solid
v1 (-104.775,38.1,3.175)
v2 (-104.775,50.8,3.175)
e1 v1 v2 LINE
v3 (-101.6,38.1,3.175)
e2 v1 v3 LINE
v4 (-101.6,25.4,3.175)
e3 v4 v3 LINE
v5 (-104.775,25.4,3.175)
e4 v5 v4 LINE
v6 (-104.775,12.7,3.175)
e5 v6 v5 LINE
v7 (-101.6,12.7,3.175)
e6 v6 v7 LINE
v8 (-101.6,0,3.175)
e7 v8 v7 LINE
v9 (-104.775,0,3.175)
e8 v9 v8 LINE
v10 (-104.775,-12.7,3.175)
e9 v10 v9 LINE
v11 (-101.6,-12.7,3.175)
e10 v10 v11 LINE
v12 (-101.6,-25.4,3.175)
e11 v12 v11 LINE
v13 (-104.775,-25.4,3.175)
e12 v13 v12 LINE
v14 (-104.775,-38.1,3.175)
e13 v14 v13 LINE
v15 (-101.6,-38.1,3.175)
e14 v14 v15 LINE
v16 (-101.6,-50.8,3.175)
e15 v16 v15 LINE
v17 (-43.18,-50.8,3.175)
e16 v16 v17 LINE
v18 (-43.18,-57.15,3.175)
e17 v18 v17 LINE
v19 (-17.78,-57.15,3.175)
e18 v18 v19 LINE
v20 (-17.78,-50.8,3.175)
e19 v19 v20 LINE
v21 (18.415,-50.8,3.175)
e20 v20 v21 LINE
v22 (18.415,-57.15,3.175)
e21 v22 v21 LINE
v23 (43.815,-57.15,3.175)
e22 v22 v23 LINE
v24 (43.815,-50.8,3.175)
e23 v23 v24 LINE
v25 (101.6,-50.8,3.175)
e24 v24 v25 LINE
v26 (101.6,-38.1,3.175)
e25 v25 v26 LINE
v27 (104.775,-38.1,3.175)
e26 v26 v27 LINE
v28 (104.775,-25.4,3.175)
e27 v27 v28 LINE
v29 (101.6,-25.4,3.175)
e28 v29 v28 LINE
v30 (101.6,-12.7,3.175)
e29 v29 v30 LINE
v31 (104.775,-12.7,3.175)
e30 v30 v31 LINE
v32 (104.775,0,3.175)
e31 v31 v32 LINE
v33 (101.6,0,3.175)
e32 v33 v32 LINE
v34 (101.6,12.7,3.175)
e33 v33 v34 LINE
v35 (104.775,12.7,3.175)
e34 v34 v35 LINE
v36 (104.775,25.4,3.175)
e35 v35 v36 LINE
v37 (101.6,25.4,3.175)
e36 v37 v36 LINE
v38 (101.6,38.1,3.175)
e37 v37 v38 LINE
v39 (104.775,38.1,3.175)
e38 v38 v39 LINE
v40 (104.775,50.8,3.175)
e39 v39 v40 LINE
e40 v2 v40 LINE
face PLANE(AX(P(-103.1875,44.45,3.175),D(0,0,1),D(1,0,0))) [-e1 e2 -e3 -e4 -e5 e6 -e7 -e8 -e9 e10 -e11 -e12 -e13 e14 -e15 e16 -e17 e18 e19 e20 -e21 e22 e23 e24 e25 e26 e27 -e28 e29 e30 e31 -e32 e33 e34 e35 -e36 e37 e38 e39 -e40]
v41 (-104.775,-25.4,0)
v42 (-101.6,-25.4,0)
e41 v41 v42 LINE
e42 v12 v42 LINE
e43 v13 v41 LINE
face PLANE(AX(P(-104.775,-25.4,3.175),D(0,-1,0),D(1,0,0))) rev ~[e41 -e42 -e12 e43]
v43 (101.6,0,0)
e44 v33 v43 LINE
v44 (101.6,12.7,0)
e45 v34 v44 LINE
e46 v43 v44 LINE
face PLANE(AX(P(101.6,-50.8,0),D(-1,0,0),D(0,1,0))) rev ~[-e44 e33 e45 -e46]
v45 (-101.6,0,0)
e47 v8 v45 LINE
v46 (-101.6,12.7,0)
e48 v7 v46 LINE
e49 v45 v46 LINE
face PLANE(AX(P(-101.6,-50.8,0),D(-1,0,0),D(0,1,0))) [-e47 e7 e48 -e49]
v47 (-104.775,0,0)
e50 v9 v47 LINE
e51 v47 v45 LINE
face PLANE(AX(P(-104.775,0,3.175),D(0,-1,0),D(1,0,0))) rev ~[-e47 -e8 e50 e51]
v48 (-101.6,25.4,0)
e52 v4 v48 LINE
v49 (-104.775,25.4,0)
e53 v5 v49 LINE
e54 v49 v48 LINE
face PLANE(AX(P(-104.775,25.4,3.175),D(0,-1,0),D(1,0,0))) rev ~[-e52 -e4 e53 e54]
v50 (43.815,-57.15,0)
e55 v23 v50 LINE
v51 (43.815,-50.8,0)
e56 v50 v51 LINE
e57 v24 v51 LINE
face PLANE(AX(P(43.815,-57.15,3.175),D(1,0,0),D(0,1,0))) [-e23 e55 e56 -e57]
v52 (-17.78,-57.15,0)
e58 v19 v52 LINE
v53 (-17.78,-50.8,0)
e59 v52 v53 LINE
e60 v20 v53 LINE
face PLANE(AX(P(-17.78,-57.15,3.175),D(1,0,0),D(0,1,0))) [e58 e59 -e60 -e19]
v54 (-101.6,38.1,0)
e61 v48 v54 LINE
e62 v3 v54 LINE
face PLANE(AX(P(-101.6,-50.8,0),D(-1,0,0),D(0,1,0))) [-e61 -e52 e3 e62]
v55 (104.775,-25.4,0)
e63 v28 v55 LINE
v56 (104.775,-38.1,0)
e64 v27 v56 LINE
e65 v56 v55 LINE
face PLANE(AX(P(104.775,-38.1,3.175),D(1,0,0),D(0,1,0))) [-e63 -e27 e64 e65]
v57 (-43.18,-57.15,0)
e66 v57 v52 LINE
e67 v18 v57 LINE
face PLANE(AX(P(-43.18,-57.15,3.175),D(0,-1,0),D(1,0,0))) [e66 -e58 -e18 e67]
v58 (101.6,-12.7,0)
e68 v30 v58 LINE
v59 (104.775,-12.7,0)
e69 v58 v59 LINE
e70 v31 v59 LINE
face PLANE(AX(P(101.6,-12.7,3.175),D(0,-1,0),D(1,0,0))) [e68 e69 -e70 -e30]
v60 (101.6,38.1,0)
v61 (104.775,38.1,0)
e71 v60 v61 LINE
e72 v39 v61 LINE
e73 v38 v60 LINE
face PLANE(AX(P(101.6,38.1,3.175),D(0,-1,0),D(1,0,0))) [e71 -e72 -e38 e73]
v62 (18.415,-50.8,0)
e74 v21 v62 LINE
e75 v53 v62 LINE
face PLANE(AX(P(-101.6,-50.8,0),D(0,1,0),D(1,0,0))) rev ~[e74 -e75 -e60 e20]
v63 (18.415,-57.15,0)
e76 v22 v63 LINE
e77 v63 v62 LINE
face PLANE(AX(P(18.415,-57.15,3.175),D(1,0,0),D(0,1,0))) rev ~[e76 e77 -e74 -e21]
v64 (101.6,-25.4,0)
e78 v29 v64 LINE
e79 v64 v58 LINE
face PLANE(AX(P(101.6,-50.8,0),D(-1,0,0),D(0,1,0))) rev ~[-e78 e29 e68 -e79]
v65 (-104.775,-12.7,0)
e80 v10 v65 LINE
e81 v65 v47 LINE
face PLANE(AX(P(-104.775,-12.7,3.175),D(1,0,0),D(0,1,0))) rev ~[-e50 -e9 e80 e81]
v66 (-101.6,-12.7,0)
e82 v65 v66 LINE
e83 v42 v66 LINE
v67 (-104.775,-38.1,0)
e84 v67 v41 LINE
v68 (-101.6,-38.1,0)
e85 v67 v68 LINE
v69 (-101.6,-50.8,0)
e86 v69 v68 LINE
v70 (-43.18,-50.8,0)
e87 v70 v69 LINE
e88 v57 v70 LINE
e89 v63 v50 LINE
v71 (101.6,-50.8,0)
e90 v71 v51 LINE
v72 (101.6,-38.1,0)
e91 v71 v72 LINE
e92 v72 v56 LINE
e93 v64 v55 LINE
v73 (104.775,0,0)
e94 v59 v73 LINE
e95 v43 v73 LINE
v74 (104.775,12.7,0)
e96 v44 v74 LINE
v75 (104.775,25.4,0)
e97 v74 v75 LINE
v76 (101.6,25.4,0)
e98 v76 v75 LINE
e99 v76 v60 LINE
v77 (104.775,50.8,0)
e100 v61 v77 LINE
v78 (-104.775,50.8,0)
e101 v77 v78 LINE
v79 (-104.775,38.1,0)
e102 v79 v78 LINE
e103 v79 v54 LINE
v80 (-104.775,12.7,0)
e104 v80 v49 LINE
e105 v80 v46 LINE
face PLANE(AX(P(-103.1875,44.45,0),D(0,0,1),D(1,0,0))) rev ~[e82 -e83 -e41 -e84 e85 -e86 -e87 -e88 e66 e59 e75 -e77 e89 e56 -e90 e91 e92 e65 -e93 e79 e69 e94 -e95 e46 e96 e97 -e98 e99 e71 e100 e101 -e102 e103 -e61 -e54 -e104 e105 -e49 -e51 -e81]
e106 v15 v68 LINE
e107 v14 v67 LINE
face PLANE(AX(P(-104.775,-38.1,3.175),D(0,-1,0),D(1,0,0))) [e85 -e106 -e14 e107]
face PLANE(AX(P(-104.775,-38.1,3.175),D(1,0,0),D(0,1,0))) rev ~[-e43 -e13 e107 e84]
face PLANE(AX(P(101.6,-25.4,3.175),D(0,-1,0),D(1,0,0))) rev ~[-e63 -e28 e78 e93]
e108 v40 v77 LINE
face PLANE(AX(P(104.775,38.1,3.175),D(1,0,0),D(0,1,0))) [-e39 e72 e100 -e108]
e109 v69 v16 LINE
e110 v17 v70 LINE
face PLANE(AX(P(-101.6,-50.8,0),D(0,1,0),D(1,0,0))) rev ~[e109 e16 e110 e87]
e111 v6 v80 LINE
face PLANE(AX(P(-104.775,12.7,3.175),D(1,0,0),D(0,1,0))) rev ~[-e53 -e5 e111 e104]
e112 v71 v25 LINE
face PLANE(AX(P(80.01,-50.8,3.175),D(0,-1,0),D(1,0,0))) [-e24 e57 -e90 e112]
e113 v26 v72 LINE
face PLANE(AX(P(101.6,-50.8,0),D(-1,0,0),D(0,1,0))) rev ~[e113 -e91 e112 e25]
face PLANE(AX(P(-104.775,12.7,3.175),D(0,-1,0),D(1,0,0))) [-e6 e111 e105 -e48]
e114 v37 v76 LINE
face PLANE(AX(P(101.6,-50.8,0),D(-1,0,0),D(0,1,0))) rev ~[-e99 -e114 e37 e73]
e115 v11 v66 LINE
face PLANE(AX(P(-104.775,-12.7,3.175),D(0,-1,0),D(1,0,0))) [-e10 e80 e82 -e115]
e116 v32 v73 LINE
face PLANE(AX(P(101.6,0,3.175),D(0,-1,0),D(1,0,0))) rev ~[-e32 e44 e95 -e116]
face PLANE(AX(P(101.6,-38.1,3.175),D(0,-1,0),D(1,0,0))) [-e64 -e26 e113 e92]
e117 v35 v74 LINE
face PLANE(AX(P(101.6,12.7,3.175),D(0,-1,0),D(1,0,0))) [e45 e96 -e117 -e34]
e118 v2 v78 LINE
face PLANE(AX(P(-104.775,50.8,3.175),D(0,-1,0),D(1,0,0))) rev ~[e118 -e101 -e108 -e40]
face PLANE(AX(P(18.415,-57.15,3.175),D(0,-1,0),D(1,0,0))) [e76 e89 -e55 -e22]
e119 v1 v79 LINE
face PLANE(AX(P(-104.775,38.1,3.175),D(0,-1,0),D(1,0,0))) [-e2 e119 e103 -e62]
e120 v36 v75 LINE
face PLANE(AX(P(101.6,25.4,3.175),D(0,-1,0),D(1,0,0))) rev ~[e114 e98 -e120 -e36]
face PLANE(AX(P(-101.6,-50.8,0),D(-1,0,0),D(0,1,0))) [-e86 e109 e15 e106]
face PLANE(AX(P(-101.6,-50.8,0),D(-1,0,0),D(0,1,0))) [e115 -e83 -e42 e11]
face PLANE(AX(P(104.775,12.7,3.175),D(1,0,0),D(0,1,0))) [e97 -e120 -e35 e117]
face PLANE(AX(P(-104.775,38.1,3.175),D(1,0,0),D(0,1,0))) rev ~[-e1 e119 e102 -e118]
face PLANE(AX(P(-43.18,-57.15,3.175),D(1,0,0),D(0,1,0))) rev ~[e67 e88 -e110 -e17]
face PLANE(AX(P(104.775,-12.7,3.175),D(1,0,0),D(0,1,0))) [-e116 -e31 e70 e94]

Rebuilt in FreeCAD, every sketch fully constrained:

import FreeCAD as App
import Part
import Sketcher
Q = App.Units.Quantity


def add_polygon(sketch, points):
    """Adds a closed chain of lines whose ends are joined by coincident constraints."""
    first, n = sketch.GeometryCount, len(points)
    for a, b in zip(points, points[1:] + points[:1]):
        sketch.addGeometry(Part.LineSegment(App.Vector(*a, 0), App.Vector(*b, 0)), False)
    for i in range(n):
        sketch.addConstraint(Sketcher.Constraint("Coincident", first + i, 2, first + (i + 1) % n, 1))

doc = App.newDocument("Part")
body = doc.addObject("PartDesign::Body", "Body")

sketch1 = body.newObject("Sketcher::SketchObject", "Sketch")
sketch1.AttachmentSupport = (doc.getObject("XY_Plane"), [""])
sketch1.MapMode = "FlatFace"
add_polygon(sketch1, [(-102, 51), (-102, -51), (102, -51), (102, 51)])
sketch1.addConstraint([
    Sketcher.Constraint("Vertical", 0),
    Sketcher.Constraint("Horizontal", 1),
    Sketcher.Constraint("Vertical", 2),
    Sketcher.Constraint("Horizontal", 3),
    Sketcher.Constraint("Symmetric", 0, 2, 2, 2, -1, 1),
    Sketcher.Constraint("DistanceX", 1, 1, 1, 2, Q("8 in")),
    Sketcher.Constraint("DistanceY", 0, 2, 0, 1, Q("4 in")),
])
pad1 = body.newObject("PartDesign::Pad", "Pad")
pad1.Profile = sketch1
pad1.Length = Q("0.125 in")

sketch2 = body.newObject("Sketcher::SketchObject", "Sketch001")
sketch2.AttachmentSupport = (doc.getObject("XY_Plane"), [""])
sketch2.MapMode = "FlatFace"
sketch2.AttachmentOffset = App.Placement(App.Vector(0, 0, 0.125 * 25.4), App.Rotation())
add_polygon(sketch2, [(-104.8, 25.4), (-104.8, 12.7), (-101.6, 12.7), (-101.6, 25.4)])
add_polygon(sketch2, [(-104.8, 50.8), (-104.8, 38.1), (-101.6, 38.1), (-101.6, 50.8)])
add_polygon(sketch2, [(-104.8, 0), (-104.8, -12.7), (-101.6, -12.7), (-101.6, 0)])
add_polygon(sketch2, [(-104.8, -25.4), (-104.8, -38.1), (-101.6, -38.1), (-101.6, -25.4)])
add_polygon(sketch2, [(-104.8, -50.8), (-104.8, -57.1), (-79.4, -57.1), (-79.4, -50.8)])
add_polygon(sketch2, [(-43.2, -50.8), (-43.2, -57.1), (-17.8, -57.1), (-17.8, -50.8)])
add_polygon(sketch2, [(18.4, -50.8), (18.4, -57.1), (43.8, -57.1), (43.8, -50.8)])
add_polygon(sketch2, [(80, -50.8), (80, -57.1), (105.4, -57.1), (105.4, -50.8)])
add_polygon(sketch2, [(101.6, -25.4), (101.6, -38.1), (104.8, -38.1), (104.8, -25.4)])
add_polygon(sketch2, [(101.6, 0), (101.6, -12.7), (104.8, -12.7), (104.8, 0)])
add_polygon(sketch2, [(101.6, 25.4), (101.6, 12.7), (104.8, 12.7), (104.8, 25.4)])
add_polygon(sketch2, [(101.6, 50.8), (101.6, 38.1), (104.8, 38.1), (104.8, 50.8)])
sketch2.addConstraint([
    Sketcher.Constraint("Vertical", 0),
    Sketcher.Constraint("Horizontal", 1),
    Sketcher.Constraint("Vertical", 2),
    Sketcher.Constraint("Horizontal", 3),
    Sketcher.Constraint("Vertical", 4),
    Sketcher.Constraint("Horizontal", 5),
    Sketcher.Constraint("Vertical", 6),
    Sketcher.Constraint("Horizontal", 7),
    Sketcher.Constraint("Vertical", 8),
    Sketcher.Constraint("Horizontal", 9),
    Sketcher.Constraint("Vertical", 10),
    Sketcher.Constraint("Horizontal", 11),
    Sketcher.Constraint("Vertical", 12),
    Sketcher.Constraint("Horizontal", 13),
    Sketcher.Constraint("Vertical", 14),
    Sketcher.Constraint("Horizontal", 15),
    Sketcher.Constraint("Vertical", 16),
    Sketcher.Constraint("Horizontal", 17),
    Sketcher.Constraint("Vertical", 18),
    Sketcher.Constraint("Horizontal", 19),
    Sketcher.Constraint("Vertical", 20),
    Sketcher.Constraint("Horizontal", 21),
    Sketcher.Constraint("Vertical", 22),
    Sketcher.Constraint("Horizontal", 23),
    Sketcher.Constraint("Vertical", 24),
    Sketcher.Constraint("Horizontal", 25),
    Sketcher.Constraint("Vertical", 26),
    Sketcher.Constraint("Horizontal", 27),
    Sketcher.Constraint("Vertical", 28),
    Sketcher.Constraint("Horizontal", 29),
    Sketcher.Constraint("Vertical", 30),
    Sketcher.Constraint("Horizontal", 31),
    Sketcher.Constraint("Vertical", 32),
    Sketcher.Constraint("Horizontal", 33),
    Sketcher.Constraint("Vertical", 34),
    Sketcher.Constraint("Horizontal", 35),
    Sketcher.Constraint("Vertical", 36),
    Sketcher.Constraint("Horizontal", 37),
    Sketcher.Constraint("Vertical", 38),
    Sketcher.Constraint("Horizontal", 39),
    Sketcher.Constraint("Vertical", 40),
    Sketcher.Constraint("Horizontal", 41),
    Sketcher.Constraint("Vertical", 42),
    Sketcher.Constraint("Horizontal", 43),
    Sketcher.Constraint("Vertical", 44),
    Sketcher.Constraint("Horizontal", 45),
    Sketcher.Constraint("Vertical", 46),
    Sketcher.Constraint("Horizontal", 47),
    Sketcher.Constraint("Symmetric", 5, 2, 32, 2, -1, 1),
    Sketcher.Constraint("Symmetric", 3, 2, 34, 2, -1, 1),
    Sketcher.Constraint("Symmetric", 1, 2, 36, 2, -1, 1),
    Sketcher.Constraint("Symmetric", 11, 2, 38, 2, -1, 1),
    Sketcher.Constraint("Symmetric", 9, 2, 40, 2, -1, 1),
    Sketcher.Constraint("Symmetric", 15, 2, 42, 2, -1, 1),
    Sketcher.Constraint("Symmetric", 13, 2, 44, 2, -1, 1),
    Sketcher.Constraint("Symmetric", 19, 2, 46, 2, -1, 1),
    Sketcher.Constraint("Symmetric", 13, 2, 32, 2, -2),
    Sketcher.Constraint("Symmetric", 15, 2, 34, 2, -2),
    Sketcher.Constraint("Symmetric", 9, 2, 36, 2, -2),
    Sketcher.Constraint("Symmetric", 7, 2, 46, 2, -2),
    Sketcher.Constraint("PointOnObject", 10, 2, -1),
    Sketcher.Constraint("Horizontal", 17, 2, 20, 2),
    Sketcher.Constraint("Horizontal", 19, 2, 22, 2),
    Sketcher.Constraint("Horizontal", 21, 2, 24, 2),
    Sketcher.Constraint("Horizontal", 23, 2, 26, 2),
    Sketcher.Constraint("Horizontal", 25, 2, 28, 2),
    Sketcher.Constraint("Horizontal", 27, 2, 30, 2),
    Sketcher.Constraint("Vertical", 3, 2, 4, 2),
    Sketcher.Constraint("Vertical", 2, 2, 5, 2),
    Sketcher.Constraint("Vertical", 7, 2, 8, 2),
    Sketcher.Constraint("Equal", 19, 21),
    Sketcher.Constraint("Equal", 23, 25),
    Sketcher.Constraint("Equal", 27, 29),
    Sketcher.Constraint("Equal", 2, 4),
    Sketcher.Constraint("Equal", 6, 8),
    Sketcher.Constraint("Equal", 10, 12),
    Sketcher.Constraint("DistanceX", 17, 1, 17, 2, Q("1 in")),
    Sketcher.Constraint("DistanceY", 0, 2, 0, 1, Q("0.5 in")),
    Sketcher.Constraint("DistanceX", 1, 2, -1, 1, Q("4 in")),
    Sketcher.Constraint("DistanceY", 16, 2, 16, 1, Q("0.25 in")),
    Sketcher.Constraint("DistanceX", 20, 2, -1, 1, Q("1.7 in")),
    Sketcher.Constraint("DistanceX", 1, 1, 1, 2, Q("0.125 in")),
    Sketcher.Constraint("DistanceX", -1, 1, 28, 2, Q("3.15 in")),
    Sketcher.Constraint("DistanceX", 17, 2, 24, 2, Q("3.85 in")),
])
pad2 = body.newObject("PartDesign::Pad", "Pad001")
pad2.Profile = sketch2
pad2.Length = Q("0.125 in")
pad2.Reversed = True

sketch3 = body.newObject("Sketcher::SketchObject", "Sketch002")
sketch3.AttachmentSupport = (doc.getObject("XY_Plane"), [""])
sketch3.MapMode = "FlatFace"
sketch3.AttachmentOffset = App.Placement(App.Vector(0, 0, 0.125 * 25.4), App.Rotation())
add_polygon(sketch3, [(-105, -51), (-105, -57), (-79, -57), (-79, -51)])
add_polygon(sketch3, [(80, -51), (80, -57), (105, -57), (105, -51)])
sketch3.addConstraint([
    Sketcher.Constraint("Vertical", 0),
    Sketcher.Constraint("Horizontal", 1),
    Sketcher.Constraint("Vertical", 2),
    Sketcher.Constraint("Horizontal", 3),
    Sketcher.Constraint("Vertical", 4),
    Sketcher.Constraint("Horizontal", 5),
    Sketcher.Constraint("Vertical", 6),
    Sketcher.Constraint("Horizontal", 7),
    Sketcher.Constraint("Horizontal", 1, 2, 4, 2),
    Sketcher.Constraint("Horizontal", 3, 2, 6, 2),
    Sketcher.Constraint("Equal", 3, 5),
    Sketcher.Constraint("DistanceX", 1, 1, 1, 2, Q("1 in")),
    Sketcher.Constraint("DistanceY", 2, 2, -1, 1, Q("2 in")),
    Sketcher.Constraint("DistanceY", 0, 2, 0, 1, Q("0.25 in")),
    Sketcher.Constraint("DistanceX", -1, 1, 4, 2, Q("3.15 in")),
    Sketcher.Constraint("DistanceX", 0, 2, -1, 1, Q("4.125 in")),
])
pocket1 = body.newObject("PartDesign::Pocket", "Pocket")
pocket1.Profile = sketch3
pocket1.Type = "ThroughAll"

doc.recompute()
